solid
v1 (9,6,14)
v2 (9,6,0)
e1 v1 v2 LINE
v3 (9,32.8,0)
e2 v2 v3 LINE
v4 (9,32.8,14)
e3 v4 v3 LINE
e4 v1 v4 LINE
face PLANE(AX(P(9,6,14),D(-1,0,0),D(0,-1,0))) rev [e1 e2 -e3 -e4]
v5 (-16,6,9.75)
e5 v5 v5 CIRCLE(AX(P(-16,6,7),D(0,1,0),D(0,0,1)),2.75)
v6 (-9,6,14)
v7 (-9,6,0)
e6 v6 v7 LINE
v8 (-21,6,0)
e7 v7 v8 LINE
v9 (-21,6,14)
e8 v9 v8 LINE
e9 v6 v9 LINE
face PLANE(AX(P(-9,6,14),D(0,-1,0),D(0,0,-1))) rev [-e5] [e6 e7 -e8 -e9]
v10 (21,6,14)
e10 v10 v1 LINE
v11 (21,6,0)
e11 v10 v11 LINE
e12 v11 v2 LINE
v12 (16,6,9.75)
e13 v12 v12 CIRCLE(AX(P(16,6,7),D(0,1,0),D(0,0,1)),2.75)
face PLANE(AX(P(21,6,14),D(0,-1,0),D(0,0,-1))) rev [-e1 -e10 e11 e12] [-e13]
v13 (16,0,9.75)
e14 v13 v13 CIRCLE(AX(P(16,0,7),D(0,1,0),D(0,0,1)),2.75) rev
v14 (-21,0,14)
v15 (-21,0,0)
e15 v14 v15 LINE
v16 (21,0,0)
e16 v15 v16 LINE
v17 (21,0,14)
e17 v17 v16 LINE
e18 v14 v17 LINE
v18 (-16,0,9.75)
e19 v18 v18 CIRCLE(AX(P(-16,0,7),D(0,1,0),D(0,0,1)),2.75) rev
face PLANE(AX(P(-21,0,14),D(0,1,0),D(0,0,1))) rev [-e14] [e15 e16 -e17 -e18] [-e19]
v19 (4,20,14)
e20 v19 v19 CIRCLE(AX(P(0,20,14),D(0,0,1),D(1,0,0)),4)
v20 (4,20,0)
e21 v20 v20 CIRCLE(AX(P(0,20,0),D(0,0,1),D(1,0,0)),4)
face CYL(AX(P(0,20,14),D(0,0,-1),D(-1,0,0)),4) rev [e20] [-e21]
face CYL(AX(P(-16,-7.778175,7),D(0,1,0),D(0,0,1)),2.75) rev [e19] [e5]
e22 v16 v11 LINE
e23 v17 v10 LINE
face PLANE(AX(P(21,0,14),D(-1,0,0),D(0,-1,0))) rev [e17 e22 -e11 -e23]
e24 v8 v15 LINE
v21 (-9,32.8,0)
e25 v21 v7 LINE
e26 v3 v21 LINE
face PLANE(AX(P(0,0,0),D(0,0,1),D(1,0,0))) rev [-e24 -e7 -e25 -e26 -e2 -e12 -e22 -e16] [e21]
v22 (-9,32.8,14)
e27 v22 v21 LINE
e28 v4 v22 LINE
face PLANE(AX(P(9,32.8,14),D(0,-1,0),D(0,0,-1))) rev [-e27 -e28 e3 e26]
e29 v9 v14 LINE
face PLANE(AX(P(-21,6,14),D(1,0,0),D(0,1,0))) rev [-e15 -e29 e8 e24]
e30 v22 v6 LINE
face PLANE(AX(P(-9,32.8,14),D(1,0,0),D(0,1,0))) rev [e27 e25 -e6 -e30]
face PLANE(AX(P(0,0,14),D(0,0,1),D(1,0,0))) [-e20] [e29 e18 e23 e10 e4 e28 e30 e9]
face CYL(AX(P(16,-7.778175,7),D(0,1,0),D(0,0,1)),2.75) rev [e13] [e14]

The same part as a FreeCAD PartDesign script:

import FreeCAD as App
import Part
import Sketcher

V = App.Vector
Q = App.Units.Quantity


def add_polygon(sketch, points):
    """Adds a closed chain of lines whose ends are joined by coincident constraints."""
    first, n = sketch.GeometryCount, len(points)
    for a, b in zip(points, points[1:] + points[:1]):
        sketch.addGeometry(Part.LineSegment(App.Vector(*a, 0), App.Vector(*b, 0)), False)
    for i in range(n):
        sketch.addConstraint(Sketcher.Constraint("Coincident", first + i, 2, first + (i + 1) % n, 1))

doc = App.newDocument("Part")
body = doc.addObject("PartDesign::Body", "Body")

sketch1 = body.newObject("Sketcher::SketchObject", "Sketch")
sketch1.AttachmentSupport = (doc.getObject("XY_Plane"), [""])
sketch1.MapMode = "FlatFace"
add_polygon(sketch1, [(-21, 0), (21, 0), (21, 6), (9, 6), (9, 32.8), (-9, 32.8), (-9, 6), (-21, 6)])
sketch1.addGeometry(Part.Circle(V(0, 20, 0), V(0, 0, 1), 4), False)
sketch1.addConstraint(Sketcher.Constraint("Horizontal", 0))
sketch1.addConstraint(Sketcher.Constraint("Vertical", 1))
sketch1.addConstraint(Sketcher.Constraint("Horizontal", 2))
sketch1.addConstraint(Sketcher.Constraint("Vertical", 3))
sketch1.addConstraint(Sketcher.Constraint("Horizontal", 4))
sketch1.addConstraint(Sketcher.Constraint("Vertical", 5))
sketch1.addConstraint(Sketcher.Constraint("Horizontal", 6))
sketch1.addConstraint(Sketcher.Constraint("Vertical", 7))
sketch1.addConstraint(Sketcher.Constraint("Symmetric", 0, 2, 7, 2, -1, 1))
sketch1.addConstraint(Sketcher.Constraint("Symmetric", 2, 2, 5, 2, -2))
sketch1.addConstraint(Sketcher.Constraint("PointOnObject", 8, 3, -2))
sketch1.addConstraint(Sketcher.Constraint("Diameter", 8, Q("8 mm")))
sketch1.addConstraint(Sketcher.Constraint("DistanceX", 0, 1, 0, 2, Q("42 mm")))
sketch1.addConstraint(Sketcher.Constraint("DistanceX", 2, 2, 2, 1, Q("12 mm")))
sketch1.addConstraint(Sketcher.Constraint("DistanceY", 1, 1, 1, 2, Q("6 mm")))
sketch1.addConstraint(Sketcher.Constraint("DistanceY", 3, 1, 3, 2, Q("26.8 mm")))
sketch1.addConstraint(Sketcher.Constraint("DistanceY", -1, 1, 8, 3, Q("20 mm")))
pad1 = body.newObject("PartDesign::Pad", "Pad")
pad1.Profile = sketch1
pad1.Length = 14

sketch2 = body.newObject("Sketcher::SketchObject", "Sketch001")
sketch2.AttachmentSupport = (doc.getObject("XZ_Plane"), [""])
sketch2.MapMode = "FlatFace"
sketch2.AttachmentOffset = App.Placement(V(0, 0, -6), App.Rotation())
sketch2.addGeometry(Part.Circle(V(-16, 7, 0), V(0, 0, 1), 2.8), False)
sketch2.addGeometry(Part.Circle(V(16, 7, 0), V(0, 0, 1), 2.8), False)
sketch2.addConstraint(Sketcher.Constraint("Equal", 0, 1))
sketch2.addConstraint(Sketcher.Constraint("Symmetric", 0, 3, 1, 3, -2))
sketch2.addConstraint(Sketcher.Constraint("Diameter", 0, Q("5.5 mm")))
sketch2.addConstraint(Sketcher.Constraint("DistanceX", 0, 3, -1, 1, Q("16 mm")))
sketch2.addConstraint(Sketcher.Constraint("DistanceY", -1, 1, 0, 3, Q("7 mm")))
pocket1 = body.newObject("PartDesign::Pocket", "Pocket")
pocket1.Profile = sketch2
pocket1.Length = 6
pocket1.Reversed = True

doc.recompute()
